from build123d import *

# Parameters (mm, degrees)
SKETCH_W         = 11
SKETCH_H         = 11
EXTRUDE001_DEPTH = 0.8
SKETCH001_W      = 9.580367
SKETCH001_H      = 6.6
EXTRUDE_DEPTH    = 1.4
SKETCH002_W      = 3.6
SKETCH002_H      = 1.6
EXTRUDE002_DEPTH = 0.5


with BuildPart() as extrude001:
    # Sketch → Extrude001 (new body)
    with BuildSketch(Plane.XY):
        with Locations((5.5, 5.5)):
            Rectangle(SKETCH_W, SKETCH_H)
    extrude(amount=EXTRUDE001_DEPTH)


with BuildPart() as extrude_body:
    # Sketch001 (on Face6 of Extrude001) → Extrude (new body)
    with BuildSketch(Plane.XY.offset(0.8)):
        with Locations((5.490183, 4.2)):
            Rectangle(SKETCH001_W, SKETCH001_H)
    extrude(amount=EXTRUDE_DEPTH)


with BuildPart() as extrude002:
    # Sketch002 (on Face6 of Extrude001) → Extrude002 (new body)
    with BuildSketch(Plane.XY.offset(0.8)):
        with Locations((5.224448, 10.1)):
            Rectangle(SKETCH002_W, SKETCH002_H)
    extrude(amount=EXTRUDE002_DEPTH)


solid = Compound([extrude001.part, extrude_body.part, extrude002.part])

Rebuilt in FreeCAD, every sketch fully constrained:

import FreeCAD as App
import Part
import Sketcher

V = App.Vector
Q = App.Units.Quantity

doc = App.newDocument("Part")
body = doc.addObject("PartDesign::Body", "Body")

# Sketch on XY plane
sketch1 = body.newObject("Sketcher::SketchObject", "Sketch")
sketch1.AttachmentSupport = (doc.getObject("XY_Plane"), [""])
sketch1.MapMode = "FlatFace"
sketch1.addGeometry(Part.LineSegment(V(0, 11, 0), V(0, 0, 0)), False)
sketch1.addGeometry(Part.LineSegment(V(0, 0, 0), V(11, 0, 0)), False)
sketch1.addGeometry(Part.LineSegment(V(11, 0, 0), V(11, 11, 0)), False)
sketch1.addGeometry(Part.LineSegment(V(11, 11, 0), V(0, 11, 0)), False)
sketch1.addConstraint(Sketcher.Constraint("Coincident", 0, 2, 1, 1))
sketch1.addConstraint(Sketcher.Constraint("Coincident", 1, 2, 2, 1))
sketch1.addConstraint(Sketcher.Constraint("Coincident", 2, 2, 3, 1))
sketch1.addConstraint(Sketcher.Constraint("Coincident", 3, 2, 0, 1))
sketch1.addConstraint(Sketcher.Constraint("Vertical", 0))
sketch1.addConstraint(Sketcher.Constraint("Horizontal", 1))
sketch1.addConstraint(Sketcher.Constraint("Vertical", 2))
sketch1.addConstraint(Sketcher.Constraint("Horizontal", 3))
sketch1.addConstraint(Sketcher.Constraint("Coincident", 0, 2, -1, 1))
sketch1.addConstraint(Sketcher.Constraint("Equal", 3, 0))
sketch1.addConstraint(Sketcher.Constraint("DistanceX", 1, 1, 1, 2, Q("11 mm")))
pad1 = body.newObject("PartDesign::Pad", "Pad")
pad1.Profile = sketch1
pad1.Length = 0.8
body2 = doc.addObject("PartDesign::Body", "Body001")

# Sketch on XY plane
sketch2 = body2.newObject("Sketcher::SketchObject", "Sketch001")
sketch2.AttachmentSupport = (doc.getObject("XY_Plane001"), [""])
sketch2.MapMode = "FlatFace"
sketch2.AttachmentOffset = App.Placement(V(0, 0, 0.8), App.Rotation())
sketch2.addGeometry(Part.LineSegment(V(1, 8, 0), V(1, 1, 0)), False)
sketch2.addGeometry(Part.LineSegment(V(1, 1, 0), V(10, 1, 0)), False)
sketch2.addGeometry(Part.LineSegment(V(10, 1, 0), V(10, 8, 0)), False)
sketch2.addGeometry(Part.LineSegment(V(10, 8, 0), V(1, 8, 0)), False)
sketch2.addConstraint(Sketcher.Constraint("Coincident", 0, 2, 1, 1))
sketch2.addConstraint(Sketcher.Constraint("Coincident", 1, 2, 2, 1))
sketch2.addConstraint(Sketcher.Constraint("Coincident", 2, 2, 3, 1))
sketch2.addConstraint(Sketcher.Constraint("Coincident", 3, 2, 0, 1))
sketch2.addConstraint(Sketcher.Constraint("Vertical", 0))
sketch2.addConstraint(Sketcher.Constraint("Horizontal", 1))
sketch2.addConstraint(Sketcher.Constraint("Vertical", 2))
sketch2.addConstraint(Sketcher.Constraint("Horizontal", 3))
sketch2.addConstraint(Sketcher.Constraint("DistanceY", 0, 2, 0, 1, Q("6.6 mm")))
sketch2.addConstraint(Sketcher.Constraint("DistanceX", -1, 1, 0, 2, Q("0.699999 mm")))
sketch2.addConstraint(Sketcher.Constraint("DistanceY", -1, 1, 0, 2, Q("0.9 mm")))
sketch2.addConstraint(Sketcher.Constraint("DistanceX", 1, 1, 1, 2, Q("9.580367 mm")))
pad2 = body2.newObject("PartDesign::Pad", "Pad001")
pad2.Profile = sketch2
pad2.Length = 1.4
body3 = doc.addObject("PartDesign::Body", "Body002")

# Sketch on XY plane
sketch3 = body3.newObject("Sketcher::SketchObject", "Sketch002")
sketch3.AttachmentSupport = (doc.getObject("XY_Plane002"), [""])
sketch3.MapMode = "FlatFace"
sketch3.AttachmentOffset = App.Placement(V(0, 0, 0.8), App.Rotation())
sketch3.addGeometry(Part.LineSegment(V(3.4, 10.9, 0), V(3.4, 9.3, 0)), False)
sketch3.addGeometry(Part.LineSegment(V(3.4, 9.3, 0), V(7, 9.3, 0)), False)
sketch3.addGeometry(Part.LineSegment(V(7, 9.3, 0), V(7, 10.9, 0)), False)
sketch3.addGeometry(Part.LineSegment(V(7, 10.9, 0), V(3.4, 10.9, 0)), False)
sketch3.addConstraint(Sketcher.Constraint("Coincident", 0, 2, 1, 1))
sketch3.addConstraint(Sketcher.Constraint("Coincident", 1, 2, 2, 1))
sketch3.addConstraint(Sketcher.Constraint("Coincident", 2, 2, 3, 1))
sketch3.addConstraint(Sketcher.Constraint("Coincident", 3, 2, 0, 1))
sketch3.addConstraint(Sketcher.Constraint("Vertical", 0))
sketch3.addConstraint(Sketcher.Constraint("Horizontal", 1))
sketch3.addConstraint(Sketcher.Constraint("Vertical", 2))
sketch3.addConstraint(Sketcher.Constraint("Horizontal", 3))
sketch3.addConstraint(Sketcher.Constraint("DistanceX", 1, 1, 1, 2, Q("3.6 mm")))
sketch3.addConstraint(Sketcher.Constraint("DistanceY", 0, 2, 0, 1, Q("1.6 mm")))
sketch3.addConstraint(Sketcher.Constraint("DistanceY", -1, 1, 0, 2, Q("9.3 mm")))
sketch3.addConstraint(Sketcher.Constraint("DistanceX", -1, 1, 0, 2, Q("3.424448 mm")))
pad3 = body3.newObject("PartDesign::Pad", "Pad002")
pad3.Profile = sketch3
pad3.Length = 0.5

doc.recompute()
